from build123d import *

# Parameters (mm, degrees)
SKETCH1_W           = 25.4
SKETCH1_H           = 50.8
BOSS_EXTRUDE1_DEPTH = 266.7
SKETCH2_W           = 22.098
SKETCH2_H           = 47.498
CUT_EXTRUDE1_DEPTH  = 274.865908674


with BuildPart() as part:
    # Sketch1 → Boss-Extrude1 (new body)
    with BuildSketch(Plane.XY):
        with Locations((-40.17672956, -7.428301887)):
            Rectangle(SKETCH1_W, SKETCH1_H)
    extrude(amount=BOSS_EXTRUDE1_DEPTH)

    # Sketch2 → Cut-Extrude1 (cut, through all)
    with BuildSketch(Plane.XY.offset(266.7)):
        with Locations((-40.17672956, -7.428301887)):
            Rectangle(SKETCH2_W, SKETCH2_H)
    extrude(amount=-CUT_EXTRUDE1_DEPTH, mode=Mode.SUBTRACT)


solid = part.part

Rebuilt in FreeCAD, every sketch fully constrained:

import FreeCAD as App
import Part
import Sketcher
Q = App.Units.Quantity

doc = App.newDocument("Part")
body = doc.addObject("PartDesign::Body", "Body")

# Sketch on XY plane
sketch1 = body.newObject("Sketcher::SketchObject", "Sketch")
sketch1.AttachmentSupport = (doc.getObject("XY_Plane"), [""])
sketch1.MapMode = "FlatFace"
sketch1.addGeometry([
    Part.LineSegment(App.Vector(-53, 18, 0), App.Vector(-53, -33, 0)),
    Part.LineSegment(App.Vector(-53, -33, 0), App.Vector(-27, -33, 0)),
    Part.LineSegment(App.Vector(-27, -33, 0), App.Vector(-27, 18, 0)),
    Part.LineSegment(App.Vector(-27, 18, 0), App.Vector(-53, 18, 0)),
], False)
sketch1.addConstraint([
    Sketcher.Constraint("Coincident", 0, 2, 1, 1),
    Sketcher.Constraint("Coincident", 1, 2, 2, 1),
    Sketcher.Constraint("Coincident", 2, 2, 3, 1),
    Sketcher.Constraint("Coincident", 3, 2, 0, 1),
    Sketcher.Constraint("Vertical", 0),
    Sketcher.Constraint("Horizontal", 1),
    Sketcher.Constraint("Vertical", 2),
    Sketcher.Constraint("Horizontal", 3),
    Sketcher.Constraint("DistanceX", 1, 1, 1, 2, Q("1 in")),
    Sketcher.Constraint("DistanceY", 0, 2, 0, 1, Q("2 in")),
    Sketcher.Constraint("DistanceY", 0, 2, -1, 1, 32.828302),
    Sketcher.Constraint("DistanceX", 0, 2, -1, 1, 52.87673),
])
pad1 = body.newObject("PartDesign::Pad", "Pad")
pad1.Profile = sketch1
pad1.Length = Q("10.5 in")

# Sketch on XY plane
sketch2 = body.newObject("Sketcher::SketchObject", "Sketch001")
sketch2.AttachmentSupport = (doc.getObject("XY_Plane"), [""])
sketch2.MapMode = "FlatFace"
sketch2.AttachmentOffset = App.Placement(App.Vector(0, 0, 10.5 * 25.4), App.Rotation())
sketch2.addGeometry([
    Part.LineSegment(App.Vector(-51, 16, 0), App.Vector(-51, -31, 0)),
    Part.LineSegment(App.Vector(-51, -31, 0), App.Vector(-29, -31, 0)),
    Part.LineSegment(App.Vector(-29, -31, 0), App.Vector(-29, 16, 0)),
    Part.LineSegment(App.Vector(-29, 16, 0), App.Vector(-51, 16, 0)),
], False)
sketch2.addConstraint([
    Sketcher.Constraint("Coincident", 0, 2, 1, 1),
    Sketcher.Constraint("Coincident", 1, 2, 2, 1),
    Sketcher.Constraint("Coincident", 2, 2, 3, 1),
    Sketcher.Constraint("Coincident", 3, 2, 0, 1),
    Sketcher.Constraint("Vertical", 0),
    Sketcher.Constraint("Horizontal", 1),
    Sketcher.Constraint("Vertical", 2),
    Sketcher.Constraint("Horizontal", 3),
    Sketcher.Constraint("DistanceX", 1, 1, 1, 2, Q("0.87 in")),
    Sketcher.Constraint("DistanceY", 0, 2, 0, 1, Q("1.87 in")),
    Sketcher.Constraint("DistanceY", 0, 2, -1, 1, 31.177302),
    Sketcher.Constraint("DistanceX", 0, 2, -1, 1, 51.22573),
])
pocket1 = body.newObject("PartDesign::Pocket", "Pocket")
pocket1.Profile = sketch2
pocket1.Type = "ThroughAll"

doc.recompute()
